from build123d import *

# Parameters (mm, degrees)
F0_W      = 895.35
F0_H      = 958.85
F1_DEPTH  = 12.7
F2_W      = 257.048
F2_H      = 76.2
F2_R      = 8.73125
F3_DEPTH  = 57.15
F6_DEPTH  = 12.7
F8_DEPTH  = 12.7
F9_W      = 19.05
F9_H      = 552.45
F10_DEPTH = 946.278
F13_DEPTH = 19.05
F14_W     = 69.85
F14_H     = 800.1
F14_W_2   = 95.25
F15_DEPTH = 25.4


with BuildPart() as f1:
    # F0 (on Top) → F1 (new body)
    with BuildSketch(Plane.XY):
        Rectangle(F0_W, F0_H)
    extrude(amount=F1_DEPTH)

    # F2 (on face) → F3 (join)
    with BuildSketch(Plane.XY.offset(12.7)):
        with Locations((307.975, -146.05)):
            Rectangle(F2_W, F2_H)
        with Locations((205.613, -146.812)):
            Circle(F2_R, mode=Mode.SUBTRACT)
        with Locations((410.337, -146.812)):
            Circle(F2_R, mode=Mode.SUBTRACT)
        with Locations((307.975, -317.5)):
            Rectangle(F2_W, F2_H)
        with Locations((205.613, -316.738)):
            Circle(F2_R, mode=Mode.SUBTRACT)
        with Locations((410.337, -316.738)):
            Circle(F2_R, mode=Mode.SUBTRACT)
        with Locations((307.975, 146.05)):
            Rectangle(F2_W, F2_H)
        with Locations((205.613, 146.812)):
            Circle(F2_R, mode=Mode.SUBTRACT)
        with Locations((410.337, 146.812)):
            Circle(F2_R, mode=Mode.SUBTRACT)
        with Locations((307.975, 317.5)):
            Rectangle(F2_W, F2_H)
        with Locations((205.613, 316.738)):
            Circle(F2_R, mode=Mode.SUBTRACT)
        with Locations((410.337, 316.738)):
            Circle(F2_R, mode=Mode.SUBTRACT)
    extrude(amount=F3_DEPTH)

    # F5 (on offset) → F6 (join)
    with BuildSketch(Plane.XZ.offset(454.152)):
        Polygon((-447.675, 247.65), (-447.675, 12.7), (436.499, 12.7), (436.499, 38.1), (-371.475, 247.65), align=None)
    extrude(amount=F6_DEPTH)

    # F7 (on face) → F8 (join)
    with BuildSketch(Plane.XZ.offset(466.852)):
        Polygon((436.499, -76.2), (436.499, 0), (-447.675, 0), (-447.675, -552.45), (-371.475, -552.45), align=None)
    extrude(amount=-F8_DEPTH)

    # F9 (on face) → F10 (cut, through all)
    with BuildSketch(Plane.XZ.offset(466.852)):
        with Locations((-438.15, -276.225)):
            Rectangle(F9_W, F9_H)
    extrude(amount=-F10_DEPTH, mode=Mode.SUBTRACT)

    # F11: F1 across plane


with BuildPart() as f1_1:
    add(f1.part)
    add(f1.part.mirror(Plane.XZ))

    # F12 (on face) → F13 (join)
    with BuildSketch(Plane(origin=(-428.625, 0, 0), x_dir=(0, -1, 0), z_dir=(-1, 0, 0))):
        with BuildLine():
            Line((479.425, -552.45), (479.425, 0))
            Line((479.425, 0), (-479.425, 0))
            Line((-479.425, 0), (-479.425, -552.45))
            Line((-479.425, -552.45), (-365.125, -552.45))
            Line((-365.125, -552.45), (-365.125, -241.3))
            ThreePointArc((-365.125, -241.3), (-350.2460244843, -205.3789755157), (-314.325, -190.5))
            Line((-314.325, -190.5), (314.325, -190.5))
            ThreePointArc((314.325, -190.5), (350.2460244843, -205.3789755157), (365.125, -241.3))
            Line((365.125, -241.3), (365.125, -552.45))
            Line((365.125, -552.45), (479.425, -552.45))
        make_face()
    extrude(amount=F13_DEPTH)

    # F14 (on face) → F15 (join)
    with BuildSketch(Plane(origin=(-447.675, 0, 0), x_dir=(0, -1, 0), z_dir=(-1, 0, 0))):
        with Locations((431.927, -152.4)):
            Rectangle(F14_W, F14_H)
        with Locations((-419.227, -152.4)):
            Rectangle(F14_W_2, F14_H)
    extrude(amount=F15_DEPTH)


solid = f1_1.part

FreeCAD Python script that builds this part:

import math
import FreeCAD as App
import Part
import Sketcher
Q = App.Units.Quantity


def add_polygon(sketch, points):
    """Adds a closed chain of lines whose ends are joined by coincident constraints."""
    first, n = sketch.GeometryCount, len(points)
    for a, b in zip(points, points[1:] + points[:1]):
        sketch.addGeometry(Part.LineSegment(App.Vector(*a, 0), App.Vector(*b, 0)), False)
    for i in range(n):
        sketch.addConstraint(Sketcher.Constraint("Coincident", first + i, 2, first + (i + 1) % n, 1))

doc = App.newDocument("Part")
body = doc.addObject("PartDesign::Body", "Body")

# Sketch on XY plane
sketch1 = body.newObject("Sketcher::SketchObject", "Sketch")
sketch1.AttachmentSupport = (doc.getObject("XY_Plane"), [""])
sketch1.MapMode = "FlatFace"
add_polygon(sketch1, [(-447.675, 479.425), (-447.675, -479.425), (447.675, -479.425), (447.675, 479.425)])  # lines 0-3
sketch1.addConstraint([
    Sketcher.Constraint("Vertical", 0),
    Sketcher.Constraint("Horizontal", 1),
    Sketcher.Constraint("Vertical", 2),
    Sketcher.Constraint("Horizontal", 3),
    Sketcher.Constraint("Symmetric", 0, 2, 2, 2, -1, 1),
    Sketcher.Constraint("DistanceX", 1, 1, 1, 2, Q("35.25 in")),
    Sketcher.Constraint("DistanceY", 0, 2, 0, 1, Q("37.75 in")),
])
pad1 = body.newObject("PartDesign::Pad", "Pad")
pad1.Profile = sketch1
pad1.Length = Q("0.5 in")

# Sketch on XY plane
sketch2 = body.newObject("Sketcher::SketchObject", "Sketch001")
sketch2.AttachmentSupport = (doc.getObject("XY_Plane"), [""])
sketch2.MapMode = "FlatFace"
sketch2.AttachmentOffset = App.Placement(App.Vector(0, 0, 0.5 * 25.4), App.Rotation())
add_polygon(sketch2, [(179.451, -107.95), (179.451, -184.15), (436.499, -184.15), (436.499, -107.95)])  # lines 0-3
sketch2.addGeometry(Part.Circle(App.Vector(205.613, -146.812, 0), App.Vector(0, 0, 1), 8.73125), False)  # 4
sketch2.addGeometry(Part.Circle(App.Vector(410.337, -146.812, 0), App.Vector(0, 0, 1), 8.73125), False)  # 5
add_polygon(sketch2, [(179.451, -279.4), (179.451, -355.6), (436.499, -355.6), (436.499, -279.4)])  # lines 6-9
sketch2.addGeometry(Part.Circle(App.Vector(205.613, -316.738, 0), App.Vector(0, 0, 1), 8.73125), False)  # 10
sketch2.addGeometry(Part.Circle(App.Vector(410.337, -316.738, 0), App.Vector(0, 0, 1), 8.73125), False)  # 11
add_polygon(sketch2, [(179.451, 184.15), (179.451, 107.95), (436.499, 107.95), (436.499, 184.15)])  # lines 12-15
sketch2.addGeometry(Part.Circle(App.Vector(205.613, 146.812, 0), App.Vector(0, 0, 1), 8.73125), False)  # 16
sketch2.addGeometry(Part.Circle(App.Vector(410.337, 146.812, 0), App.Vector(0, 0, 1), 8.73125), False)  # 17
add_polygon(sketch2, [(179.451, 355.6), (179.451, 279.4), (436.499, 279.4), (436.499, 355.6)])  # lines 18-21
sketch2.addGeometry(Part.Circle(App.Vector(205.613, 316.738, 0), App.Vector(0, 0, 1), 8.73125), False)  # 22
sketch2.addGeometry(Part.Circle(App.Vector(410.337, 316.738, 0), App.Vector(0, 0, 1), 8.73125), False)  # 23
sketch2.addConstraint([
    Sketcher.Constraint("Vertical", 0),
    Sketcher.Constraint("Horizontal", 1),
    Sketcher.Constraint("Vertical", 2),
    Sketcher.Constraint("Horizontal", 3),
    Sketcher.Constraint("Vertical", 6),
    Sketcher.Constraint("Horizontal", 7),
    Sketcher.Constraint("Vertical", 8),
    Sketcher.Constraint("Horizontal", 9),
    Sketcher.Constraint("Vertical", 12),
    Sketcher.Constraint("Horizontal", 13),
    Sketcher.Constraint("Vertical", 14),
    Sketcher.Constraint("Horizontal", 15),
    Sketcher.Constraint("Vertical", 18),
    Sketcher.Constraint("Horizontal", 19),
    Sketcher.Constraint("Vertical", 20),
    Sketcher.Constraint("Horizontal", 21),
    Sketcher.Constraint("Equal", 4, 5),
    Sketcher.Constraint("Equal", 5, 10),
    Sketcher.Constraint("Equal", 10, 11),
    Sketcher.Constraint("Equal", 11, 16),
    Sketcher.Constraint("Equal", 16, 17),
    Sketcher.Constraint("Equal", 17, 22),
    Sketcher.Constraint("Equal", 22, 23),
    Sketcher.Constraint("Symmetric", 4, 3, 16, 3, -1),
    Sketcher.Constraint("Symmetric", 5, 3, 17, 3, -1),
    Sketcher.Constraint("Symmetric", 10, 3, 22, 3, -1),
    Sketcher.Constraint("Symmetric", 11, 3, 23, 3, -1),
    Sketcher.Constraint("Symmetric", 3, 2, 12, 2, -1),
    Sketcher.Constraint("Symmetric", 1, 2, 14, 2, -1),
    Sketcher.Constraint("Symmetric", 9, 2, 18, 2, -1),
    Sketcher.Constraint("Symmetric", 7, 2, 20, 2, -1),
    Sketcher.Constraint("Horizontal", 4, 3, 5, 3),
    Sketcher.Constraint("Horizontal", 10, 3, 11, 3),
    Sketcher.Constraint("Vertical", 4, 3, 10, 3),
    Sketcher.Constraint("Vertical", 5, 3, 11, 3),
    Sketcher.Constraint("Vertical", 3, 2, 6, 2),
    Sketcher.Constraint("Vertical", 2, 2, 7, 2),
    Sketcher.Constraint("Equal", 2, 6),
    Sketcher.Constraint("DistanceY", 0, 2, 0, 1, Q("3 in")),
    Sketcher.Constraint("Diameter", 4, Q("0.6875 in")),
    Sketcher.Constraint("DistanceY", 6, 2, -1, 1, Q("14 in")),
    Sketcher.Constraint("DistanceX", 1, 1, 1, 2, Q("10.12 in")),
    Sketcher.Constraint("DistanceY", 3, 2, 12, 2, Q("8.5 in")),
    Sketcher.Constraint("DistanceY", 4, 3, -1, 1, Q("5.78 in")),
    Sketcher.Constraint("DistanceY", 10, 3, -1, 1, Q("12.47 in")),
    Sketcher.Constraint("DistanceX", 4, 3, 5, 3, Q("8.06 in")),
    Sketcher.Constraint("DistanceX", 0, 2, 4, 3, Q("1.03 in")),
    Sketcher.Constraint("DistanceX", -1, 1, 4, 3, Q("8.095 in")),
])
pad2 = body.newObject("PartDesign::Pad", "Pad001")
pad2.Profile = sketch2
pad2.Length = Q("2.25 in")

# Sketch on XZ plane
sketch3 = body.newObject("Sketcher::SketchObject", "Sketch002")
sketch3.AttachmentSupport = (doc.getObject("XZ_Plane"), [""])
sketch3.MapMode = "FlatFace"
sketch3.AttachmentOffset = App.Placement(App.Vector(0, 0, 17.88 * 25.4), App.Rotation())
add_polygon(sketch3, [(-447.675, 247.65), (-447.675, 12.7), (436.499, 12.7), (436.499, 38.1), (-371.475, 247.65)])  # lines 0-4
sketch3.addConstraint([
    Sketcher.Constraint("Vertical", 0),
    Sketcher.Constraint("Horizontal", 1),
    Sketcher.Constraint("Vertical", 2),
    Sketcher.Constraint("Horizontal", 4),
    Sketcher.Constraint("DistanceX", 4, 2, 4, 1, Q("3 in")),
    Sketcher.Constraint("DistanceY", 2, 1, 2, 2, Q("1 in")),
    Sketcher.Constraint("DistanceX", 1, 1, 1, 2, Q("34.81 in")),
    Sketcher.Constraint("DistanceY", 0, 2, 0, 1, Q("9.25 in")),
    Sketcher.Constraint("DistanceY", -1, 1, 0, 2, Q("0.5 in")),
    Sketcher.Constraint("DistanceX", 0, 2, -1, 1, Q("17.625 in")),
])
pad3 = body.newObject("PartDesign::Pad", "Pad002")
pad3.Profile = sketch3
pad3.Length = Q("0.5 in")

# Sketch on XZ plane
sketch4 = body.newObject("Sketcher::SketchObject", "Sketch003")
sketch4.AttachmentSupport = (doc.getObject("XZ_Plane"), [""])
sketch4.MapMode = "FlatFace"
sketch4.AttachmentOffset = App.Placement(App.Vector(0, 0, 18.38 * 25.4), App.Rotation())
add_polygon(sketch4, [(436.499, -76.2), (436.499, 0), (-447.675, 0), (-447.675, -552.45), (-371.475, -552.45)])  # lines 0-4
sketch4.addConstraint([
    Sketcher.Constraint("Vertical", 0),
    Sketcher.Constraint("Horizontal", 1),
    Sketcher.Constraint("Vertical", 2),
    Sketcher.Constraint("Horizontal", 3),
    Sketcher.Constraint("PointOnObject", 0, 2, -1),
    Sketcher.Constraint("Equal", 3, 0),
    Sketcher.Constraint("DistanceX", 3, 1, 3, 2, Q("3 in")),
    Sketcher.Constraint("DistanceX", 1, 2, 1, 1, Q("34.81 in")),
    Sketcher.Constraint("DistanceY", 2, 2, 2, 1, Q("21.75 in")),
    Sketcher.Constraint("DistanceX", -1, 1, 0, 2, Q("17.185 in")),
])
pad4 = body.newObject("PartDesign::Pad", "Pad003")
pad4.Profile = sketch4
pad4.Length = Q("0.5 in")
pad4.Reversed = True

# Sketch on XZ plane
sketch5 = body.newObject("Sketcher::SketchObject", "Sketch004")
sketch5.AttachmentSupport = (doc.getObject("XZ_Plane"), [""])
sketch5.MapMode = "FlatFace"
sketch5.AttachmentOffset = App.Placement(App.Vector(0, 0, 18.38 * 25.4), App.Rotation())
add_polygon(sketch5, [(-447.675, 0), (-447.675, -552.45), (-428.625, -552.45), (-428.625, 0)])  # lines 0-3
sketch5.addConstraint([
    Sketcher.Constraint("Vertical", 0),
    Sketcher.Constraint("Horizontal", 1),
    Sketcher.Constraint("Vertical", 2),
    Sketcher.Constraint("Horizontal", 3),
    Sketcher.Constraint("PointOnObject", 2, 2, -1),
    Sketcher.Constraint("DistanceX", 1, 1, 1, 2, Q("0.75 in")),
    Sketcher.Constraint("DistanceY", 0, 2, 0, 1, Q("21.75 in")),
    Sketcher.Constraint("DistanceX", 0, 2, -1, 1, Q("17.625 in")),
])
pocket1 = body.newObject("PartDesign::Pocket", "Pocket")
pocket1.Profile = sketch5
pocket1.Type = "ThroughAll"
body2 = doc.addObject("PartDesign::Body", "Body001")
doc.recompute()

body2.BaseFeature = body
doc.recompute()

mirroring = doc.addObject("Part::Mirroring", "Mirroring")
mirroring.Source = body
mirroring.Base = App.Vector(0, 0, 0)
mirroring.Normal = App.Vector(0, -1, 0)
body3 = doc.addObject("PartDesign::Body", "Body002")
body3.BaseFeature = mirroring
boolean = body2.newObject("PartDesign::Boolean", "Boolean")
boolean.Type = "Fuse"
boolean.addObjects([body3])
doc.recompute()

# Sketch on YZ plane
sketch6 = body2.newObject("Sketcher::SketchObject", "Sketch005")
sketch6.AttachmentSupport = (doc.getObject("YZ_Plane001"), [""])
sketch6.MapMode = "FlatFace"
sketch6.AttachmentOffset = App.Placement(App.Vector(0, 0, -16.875 * 25.4), App.Rotation())
sketch6.addGeometry([
    Part.LineSegment(App.Vector(-479.425, -552.45, 0), App.Vector(-479.425, 0, 0)),  # 0
    Part.LineSegment(App.Vector(-479.425, 0, 0), App.Vector(479.425, 0, 0)),  # 1
    Part.LineSegment(App.Vector(479.425, 0, 0), App.Vector(479.425, -552.45, 0)),  # 2
    Part.LineSegment(App.Vector(479.425, -552.45, 0), App.Vector(365.125, -552.45, 0)),  # 3
    Part.LineSegment(App.Vector(365.125, -552.45, 0), App.Vector(365.125, -241.3, 0)),  # 4
    Part.ArcOfCircle(Part.Circle(App.Vector(314.325, -241.3, 0), App.Vector(0, 0, 1), 50.8), math.radians(0), math.radians(90)),  # 5
    Part.LineSegment(App.Vector(314.325, -190.5, 0), App.Vector(-314.325, -190.5, 0)),  # 6
    Part.ArcOfCircle(Part.Circle(App.Vector(-314.325, -241.3, 0), App.Vector(0, 0, 1), 50.8), math.radians(90), math.radians(180)),  # 7
    Part.LineSegment(App.Vector(-365.125, -241.3, 0), App.Vector(-365.125, -552.45, 0)),  # 8
    Part.LineSegment(App.Vector(-365.125, -552.45, 0), App.Vector(-479.425, -552.45, 0)),  # 9
], False)
sketch6.addConstraint([
    Sketcher.Constraint("Coincident", 0, 2, 1, 1),
    Sketcher.Constraint("Coincident", 1, 2, 2, 1),
    Sketcher.Constraint("Coincident", 2, 2, 3, 1),
    Sketcher.Constraint("Coincident", 3, 2, 4, 1),
    Sketcher.Constraint("Tangent", 4, 2, 5, 1),
    Sketcher.Constraint("Tangent", 5, 2, 6, 1),
    Sketcher.Constraint("Tangent", 6, 2, 7, 1),
    Sketcher.Constraint("Tangent", 7, 2, 8, 1),
    Sketcher.Constraint("Coincident", 8, 2, 9, 1),
    Sketcher.Constraint("Coincident", 9, 2, 0, 1),
    Sketcher.Constraint("Vertical", 0),
    Sketcher.Constraint("Horizontal", 1),
    Sketcher.Constraint("Vertical", 2),
    Sketcher.Constraint("Horizontal", 3),
    Sketcher.Constraint("Vertical", 4),
    Sketcher.Constraint("Horizontal", 6),
    Sketcher.Constraint("Vertical", 8),
    Sketcher.Constraint("Horizontal", 9),
    Sketcher.Constraint("Equal", 5, 7),
    Sketcher.Constraint("Symmetric", 0, 2, 1, 2, -1, 1),
    Sketcher.Constraint("Symmetric", 3, 2, 8, 2, -2),
    Sketcher.Constraint("Radius", 5, Q("2 in")),
    Sketcher.Constraint("DistanceX", 3, 2, 3, 1, Q("4.5 in")),
    Sketcher.Constraint("DistanceX", 1, 1, 1, 2, Q("37.75 in")),
    Sketcher.Constraint("DistanceY", 0, 1, 0, 2, Q("21.75 in")),
    Sketcher.Constraint("DistanceY", 4, 1, 4, 2, Q("12.25 in")),
])
pad5 = body2.newObject("PartDesign::Pad", "Pad004")
pad5.Profile = sketch6
pad5.Length = Q("0.75 in")
pad5.Reversed = True

# Sketch on YZ plane
sketch7 = body2.newObject("Sketcher::SketchObject", "Sketch006")
sketch7.AttachmentSupport = (doc.getObject("YZ_Plane001"), [""])
sketch7.MapMode = "FlatFace"
sketch7.AttachmentOffset = App.Placement(App.Vector(0, 0, -17.625 * 25.4), App.Rotation())
add_polygon(sketch7, [(-397.002, 247.65), (-397.002, -552.45), (-466.852, -552.45), (-466.852, 247.65)])  # lines 0-3
add_polygon(sketch7, [(466.852, 247.65), (466.852, -552.45), (371.602, -552.45), (371.602, 247.65)])  # lines 4-7
sketch7.addConstraint([
    Sketcher.Constraint("Vertical", 0),
    Sketcher.Constraint("Horizontal", 1),
    Sketcher.Constraint("Vertical", 2),
    Sketcher.Constraint("Horizontal", 3),
    Sketcher.Constraint("Vertical", 4),
    Sketcher.Constraint("Horizontal", 5),
    Sketcher.Constraint("Vertical", 6),
    Sketcher.Constraint("Horizontal", 7),
    Sketcher.Constraint("Symmetric", 1, 2, 4, 2, -2),
    Sketcher.Constraint("Horizontal", 3, 2, 6, 2),
    Sketcher.Constraint("DistanceY", 0, 2, 0, 1, Q("31.5 in")),
    Sketcher.Constraint("DistanceX", 1, 2, 1, 1, Q("2.75 in")),
    Sketcher.Constraint("DistanceX", 5, 2, 5, 1, Q("3.75 in")),
    Sketcher.Constraint("DistanceX", 0, 2, -1, 1, Q("15.63 in")),
    Sketcher.Constraint("DistanceY", 0, 2, -1, 1, Q("21.75 in")),
])
pad6 = body2.newObject("PartDesign::Pad", "Pad005")
pad6.Profile = sketch7
pad6.Length = Q("1 in")
pad6.Reversed = True
mirroring.Visibility = False

doc.recompute()
